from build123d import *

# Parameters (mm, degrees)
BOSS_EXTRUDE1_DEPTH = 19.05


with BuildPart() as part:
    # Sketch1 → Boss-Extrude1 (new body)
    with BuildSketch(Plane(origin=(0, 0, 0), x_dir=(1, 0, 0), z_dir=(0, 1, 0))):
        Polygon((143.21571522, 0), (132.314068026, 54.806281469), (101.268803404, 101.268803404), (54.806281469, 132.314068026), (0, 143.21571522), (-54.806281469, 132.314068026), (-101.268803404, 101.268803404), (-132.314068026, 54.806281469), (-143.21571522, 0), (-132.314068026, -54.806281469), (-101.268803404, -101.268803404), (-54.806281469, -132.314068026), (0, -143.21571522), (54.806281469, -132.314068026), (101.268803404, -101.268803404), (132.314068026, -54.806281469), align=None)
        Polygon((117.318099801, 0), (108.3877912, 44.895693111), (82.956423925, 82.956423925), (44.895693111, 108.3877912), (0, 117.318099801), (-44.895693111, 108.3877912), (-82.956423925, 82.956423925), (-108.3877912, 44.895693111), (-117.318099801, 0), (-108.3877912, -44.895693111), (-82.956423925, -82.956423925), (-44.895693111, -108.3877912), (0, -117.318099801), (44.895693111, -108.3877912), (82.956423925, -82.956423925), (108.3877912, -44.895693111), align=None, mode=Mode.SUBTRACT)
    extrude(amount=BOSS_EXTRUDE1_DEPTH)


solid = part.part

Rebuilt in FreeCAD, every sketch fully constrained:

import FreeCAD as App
import Part
import Sketcher
Q = App.Units.Quantity

doc = App.newDocument("Part")
body = doc.addObject("PartDesign::Body", "Body")

# Sketch on XZ plane
sketch1 = body.newObject("Sketcher::SketchObject", "Sketch")
sketch1.AttachmentSupport = (doc.getObject("XZ_Plane"), [""])
sketch1.MapMode = "FlatFace"
sketch1.addGeometry([
    Part.LineSegment(App.Vector(143, 0, 0), App.Vector(132, -55, 0)),  # 0
    Part.LineSegment(App.Vector(132, -55, 0), App.Vector(101, -101, 0)),  # 1
    Part.LineSegment(App.Vector(101, -101, 0), App.Vector(55, -132, 0)),  # 2
    Part.LineSegment(App.Vector(55, -132, 0), App.Vector(0, -143, 0)),  # 3
    Part.LineSegment(App.Vector(0, -143, 0), App.Vector(-55, -132, 0)),  # 4
    Part.LineSegment(App.Vector(-55, -132, 0), App.Vector(-101, -101, 0)),  # 5
    Part.LineSegment(App.Vector(-101, -101, 0), App.Vector(-132, -55, 0)),  # 6
    Part.LineSegment(App.Vector(-132, -55, 0), App.Vector(-143, 0, 0)),  # 7
    Part.LineSegment(App.Vector(-143, 0, 0), App.Vector(-132, 55, 0)),  # 8
    Part.LineSegment(App.Vector(-132, 55, 0), App.Vector(-101, 101, 0)),  # 9
    Part.LineSegment(App.Vector(-101, 101, 0), App.Vector(-55, 132, 0)),  # 10
    Part.LineSegment(App.Vector(-55, 132, 0), App.Vector(0, 143, 0)),  # 11
    Part.LineSegment(App.Vector(0, 143, 0), App.Vector(55, 132, 0)),  # 12
    Part.LineSegment(App.Vector(55, 132, 0), App.Vector(101, 101, 0)),  # 13
    Part.LineSegment(App.Vector(101, 101, 0), App.Vector(132, 55, 0)),  # 14
    Part.LineSegment(App.Vector(132, 55, 0), App.Vector(143, 0, 0)),  # 15
    Part.LineSegment(App.Vector(108, -45, 0), App.Vector(117, 0, 0)),  # 16
    Part.LineSegment(App.Vector(117, 0, 0), App.Vector(108, 45, 0)),  # 17
    Part.LineSegment(App.Vector(108, 45, 0), App.Vector(83, 83, 0)),  # 18
    Part.LineSegment(App.Vector(83, 83, 0), App.Vector(45, 108, 0)),  # 19
    Part.LineSegment(App.Vector(45, 108, 0), App.Vector(0, 117, 0)),  # 20
    Part.LineSegment(App.Vector(0, 117, 0), App.Vector(-45, 108, 0)),  # 21
    Part.LineSegment(App.Vector(-45, 108, 0), App.Vector(-83, 83, 0)),  # 22
    Part.LineSegment(App.Vector(-83, 83, 0), App.Vector(-108, 45, 0)),  # 23
    Part.LineSegment(App.Vector(-108, 45, 0), App.Vector(-117, 0, 0)),  # 24
    Part.LineSegment(App.Vector(-117, 0, 0), App.Vector(-108, -45, 0)),  # 25
    Part.LineSegment(App.Vector(-108, -45, 0), App.Vector(-83, -83, 0)),  # 26
    Part.LineSegment(App.Vector(-83, -83, 0), App.Vector(-45, -108, 0)),  # 27
    Part.LineSegment(App.Vector(-45, -108, 0), App.Vector(0, -117, 0)),  # 28
    Part.LineSegment(App.Vector(0, -117, 0), App.Vector(45, -108, 0)),  # 29
    Part.LineSegment(App.Vector(45, -108, 0), App.Vector(83, -83, 0)),  # 30
    Part.LineSegment(App.Vector(83, -83, 0), App.Vector(108, -45, 0)),  # 31
], False)
sketch1.addConstraint([
    Sketcher.Constraint("Coincident", 0, 2, 1, 1),
    Sketcher.Constraint("Coincident", 1, 2, 2, 1),
    Sketcher.Constraint("Coincident", 2, 2, 3, 1),
    Sketcher.Constraint("Coincident", 3, 2, 4, 1),
    Sketcher.Constraint("Coincident", 4, 2, 5, 1),
    Sketcher.Constraint("Coincident", 5, 2, 6, 1),
    Sketcher.Constraint("Coincident", 6, 2, 7, 1),
    Sketcher.Constraint("Coincident", 7, 2, 8, 1),
    Sketcher.Constraint("Coincident", 8, 2, 9, 1),
    Sketcher.Constraint("Coincident", 9, 2, 10, 1),
    Sketcher.Constraint("Coincident", 10, 2, 11, 1),
    Sketcher.Constraint("Coincident", 11, 2, 12, 1),
    Sketcher.Constraint("Coincident", 12, 2, 13, 1),
    Sketcher.Constraint("Coincident", 13, 2, 14, 1),
    Sketcher.Constraint("Coincident", 14, 2, 15, 1),
    Sketcher.Constraint("Coincident", 15, 2, 0, 1),
    Sketcher.Constraint("Coincident", 16, 2, 17, 1),
    Sketcher.Constraint("Coincident", 17, 2, 18, 1),
    Sketcher.Constraint("Coincident", 18, 2, 19, 1),
    Sketcher.Constraint("Coincident", 19, 2, 20, 1),
    Sketcher.Constraint("Coincident", 20, 2, 21, 1),
    Sketcher.Constraint("Coincident", 21, 2, 22, 1),
    Sketcher.Constraint("Coincident", 22, 2, 23, 1),
    Sketcher.Constraint("Coincident", 23, 2, 24, 1),
    Sketcher.Constraint("Coincident", 24, 2, 25, 1),
    Sketcher.Constraint("Coincident", 25, 2, 26, 1),
    Sketcher.Constraint("Coincident", 26, 2, 27, 1),
    Sketcher.Constraint("Coincident", 27, 2, 28, 1),
    Sketcher.Constraint("Coincident", 28, 2, 29, 1),
    Sketcher.Constraint("Coincident", 29, 2, 30, 1),
    Sketcher.Constraint("Coincident", 30, 2, 31, 1),
    Sketcher.Constraint("Coincident", 31, 2, 16, 1),
    Sketcher.Constraint("Symmetric", 0, 2, 8, 2, -1, 1),
    Sketcher.Constraint("Symmetric", 1, 2, 9, 2, -1, 1),
    Sketcher.Constraint("Symmetric", 2, 2, 10, 2, -1, 1),
    Sketcher.Constraint("Symmetric", 3, 2, 11, 2, -1, 1),
    Sketcher.Constraint("Symmetric", 4, 2, 12, 2, -1, 1),
    Sketcher.Constraint("Symmetric", 5, 2, 13, 2, -1, 1),
    Sketcher.Constraint("Symmetric", 6, 2, 14, 2, -1, 1),
    Sketcher.Constraint("Symmetric", 7, 2, 15, 2, -1, 1),
    Sketcher.Constraint("Symmetric", 16, 2, 24, 2, -1, 1),
    Sketcher.Constraint("Symmetric", 17, 2, 25, 2, -1, 1),
    Sketcher.Constraint("Symmetric", 18, 2, 26, 2, -1, 1),
    Sketcher.Constraint("Symmetric", 19, 2, 27, 2, -1, 1),
    Sketcher.Constraint("Symmetric", 20, 2, 28, 2, -1, 1),
    Sketcher.Constraint("Symmetric", 21, 2, 29, 2, -1, 1),
    Sketcher.Constraint("Symmetric", 22, 2, 30, 2, -1, 1),
    Sketcher.Constraint("Symmetric", 23, 2, 31, 2, -1, 1),
    Sketcher.Constraint("Symmetric", 2, 2, 4, 2, -2),
    Sketcher.Constraint("Symmetric", 1, 2, 5, 2, -2),
    Sketcher.Constraint("Symmetric", 0, 2, 6, 2, -2),
    Sketcher.Constraint("Symmetric", 19, 2, 21, 2, -2),
    Sketcher.Constraint("Symmetric", 18, 2, 22, 2, -2),
    Sketcher.Constraint("Symmetric", 17, 2, 23, 2, -2),
    Sketcher.Constraint("PointOnObject", 3, 2, -2),
    Sketcher.Constraint("PointOnObject", 7, 2, -1),
    Sketcher.Constraint("PointOnObject", 16, 2, -1),
    Sketcher.Constraint("PointOnObject", 20, 2, -2),
    Sketcher.Constraint("Perpendicular", 0, 4),
    Sketcher.Constraint("Perpendicular", 1, 5),
    Sketcher.Constraint("Perpendicular", 12, 16),
    Sketcher.Constraint("Parallel", 14, 18),
    Sketcher.Constraint("Parallel", 13, 19),
    Sketcher.Constraint("Perpendicular", 16, 20),
    Sketcher.Constraint("Equal", 0, 1),
    Sketcher.Constraint("Equal", 1, 2),
    Sketcher.Constraint("Equal", 2, 3),
    Sketcher.Constraint("Equal", 17, 18),
    Sketcher.Constraint("Equal", 18, 19),
    Sketcher.Constraint("Equal", 19, 20),
    Sketcher.Constraint("Distance", 0, Q("2.2 in")),
    Sketcher.Constraint("Angle", 0, Q("-101.25 deg")),
    Sketcher.Constraint("Angle", 1, Q("-123.75 deg")),
    Sketcher.Constraint("DistanceX", -1, 1, 16, 2, 117.3181),
])
pad1 = body.newObject("PartDesign::Pad", "Pad")
pad1.Profile = sketch1
pad1.Length = Q("0.75 in")
pad1.Reversed = True

doc.recompute()
